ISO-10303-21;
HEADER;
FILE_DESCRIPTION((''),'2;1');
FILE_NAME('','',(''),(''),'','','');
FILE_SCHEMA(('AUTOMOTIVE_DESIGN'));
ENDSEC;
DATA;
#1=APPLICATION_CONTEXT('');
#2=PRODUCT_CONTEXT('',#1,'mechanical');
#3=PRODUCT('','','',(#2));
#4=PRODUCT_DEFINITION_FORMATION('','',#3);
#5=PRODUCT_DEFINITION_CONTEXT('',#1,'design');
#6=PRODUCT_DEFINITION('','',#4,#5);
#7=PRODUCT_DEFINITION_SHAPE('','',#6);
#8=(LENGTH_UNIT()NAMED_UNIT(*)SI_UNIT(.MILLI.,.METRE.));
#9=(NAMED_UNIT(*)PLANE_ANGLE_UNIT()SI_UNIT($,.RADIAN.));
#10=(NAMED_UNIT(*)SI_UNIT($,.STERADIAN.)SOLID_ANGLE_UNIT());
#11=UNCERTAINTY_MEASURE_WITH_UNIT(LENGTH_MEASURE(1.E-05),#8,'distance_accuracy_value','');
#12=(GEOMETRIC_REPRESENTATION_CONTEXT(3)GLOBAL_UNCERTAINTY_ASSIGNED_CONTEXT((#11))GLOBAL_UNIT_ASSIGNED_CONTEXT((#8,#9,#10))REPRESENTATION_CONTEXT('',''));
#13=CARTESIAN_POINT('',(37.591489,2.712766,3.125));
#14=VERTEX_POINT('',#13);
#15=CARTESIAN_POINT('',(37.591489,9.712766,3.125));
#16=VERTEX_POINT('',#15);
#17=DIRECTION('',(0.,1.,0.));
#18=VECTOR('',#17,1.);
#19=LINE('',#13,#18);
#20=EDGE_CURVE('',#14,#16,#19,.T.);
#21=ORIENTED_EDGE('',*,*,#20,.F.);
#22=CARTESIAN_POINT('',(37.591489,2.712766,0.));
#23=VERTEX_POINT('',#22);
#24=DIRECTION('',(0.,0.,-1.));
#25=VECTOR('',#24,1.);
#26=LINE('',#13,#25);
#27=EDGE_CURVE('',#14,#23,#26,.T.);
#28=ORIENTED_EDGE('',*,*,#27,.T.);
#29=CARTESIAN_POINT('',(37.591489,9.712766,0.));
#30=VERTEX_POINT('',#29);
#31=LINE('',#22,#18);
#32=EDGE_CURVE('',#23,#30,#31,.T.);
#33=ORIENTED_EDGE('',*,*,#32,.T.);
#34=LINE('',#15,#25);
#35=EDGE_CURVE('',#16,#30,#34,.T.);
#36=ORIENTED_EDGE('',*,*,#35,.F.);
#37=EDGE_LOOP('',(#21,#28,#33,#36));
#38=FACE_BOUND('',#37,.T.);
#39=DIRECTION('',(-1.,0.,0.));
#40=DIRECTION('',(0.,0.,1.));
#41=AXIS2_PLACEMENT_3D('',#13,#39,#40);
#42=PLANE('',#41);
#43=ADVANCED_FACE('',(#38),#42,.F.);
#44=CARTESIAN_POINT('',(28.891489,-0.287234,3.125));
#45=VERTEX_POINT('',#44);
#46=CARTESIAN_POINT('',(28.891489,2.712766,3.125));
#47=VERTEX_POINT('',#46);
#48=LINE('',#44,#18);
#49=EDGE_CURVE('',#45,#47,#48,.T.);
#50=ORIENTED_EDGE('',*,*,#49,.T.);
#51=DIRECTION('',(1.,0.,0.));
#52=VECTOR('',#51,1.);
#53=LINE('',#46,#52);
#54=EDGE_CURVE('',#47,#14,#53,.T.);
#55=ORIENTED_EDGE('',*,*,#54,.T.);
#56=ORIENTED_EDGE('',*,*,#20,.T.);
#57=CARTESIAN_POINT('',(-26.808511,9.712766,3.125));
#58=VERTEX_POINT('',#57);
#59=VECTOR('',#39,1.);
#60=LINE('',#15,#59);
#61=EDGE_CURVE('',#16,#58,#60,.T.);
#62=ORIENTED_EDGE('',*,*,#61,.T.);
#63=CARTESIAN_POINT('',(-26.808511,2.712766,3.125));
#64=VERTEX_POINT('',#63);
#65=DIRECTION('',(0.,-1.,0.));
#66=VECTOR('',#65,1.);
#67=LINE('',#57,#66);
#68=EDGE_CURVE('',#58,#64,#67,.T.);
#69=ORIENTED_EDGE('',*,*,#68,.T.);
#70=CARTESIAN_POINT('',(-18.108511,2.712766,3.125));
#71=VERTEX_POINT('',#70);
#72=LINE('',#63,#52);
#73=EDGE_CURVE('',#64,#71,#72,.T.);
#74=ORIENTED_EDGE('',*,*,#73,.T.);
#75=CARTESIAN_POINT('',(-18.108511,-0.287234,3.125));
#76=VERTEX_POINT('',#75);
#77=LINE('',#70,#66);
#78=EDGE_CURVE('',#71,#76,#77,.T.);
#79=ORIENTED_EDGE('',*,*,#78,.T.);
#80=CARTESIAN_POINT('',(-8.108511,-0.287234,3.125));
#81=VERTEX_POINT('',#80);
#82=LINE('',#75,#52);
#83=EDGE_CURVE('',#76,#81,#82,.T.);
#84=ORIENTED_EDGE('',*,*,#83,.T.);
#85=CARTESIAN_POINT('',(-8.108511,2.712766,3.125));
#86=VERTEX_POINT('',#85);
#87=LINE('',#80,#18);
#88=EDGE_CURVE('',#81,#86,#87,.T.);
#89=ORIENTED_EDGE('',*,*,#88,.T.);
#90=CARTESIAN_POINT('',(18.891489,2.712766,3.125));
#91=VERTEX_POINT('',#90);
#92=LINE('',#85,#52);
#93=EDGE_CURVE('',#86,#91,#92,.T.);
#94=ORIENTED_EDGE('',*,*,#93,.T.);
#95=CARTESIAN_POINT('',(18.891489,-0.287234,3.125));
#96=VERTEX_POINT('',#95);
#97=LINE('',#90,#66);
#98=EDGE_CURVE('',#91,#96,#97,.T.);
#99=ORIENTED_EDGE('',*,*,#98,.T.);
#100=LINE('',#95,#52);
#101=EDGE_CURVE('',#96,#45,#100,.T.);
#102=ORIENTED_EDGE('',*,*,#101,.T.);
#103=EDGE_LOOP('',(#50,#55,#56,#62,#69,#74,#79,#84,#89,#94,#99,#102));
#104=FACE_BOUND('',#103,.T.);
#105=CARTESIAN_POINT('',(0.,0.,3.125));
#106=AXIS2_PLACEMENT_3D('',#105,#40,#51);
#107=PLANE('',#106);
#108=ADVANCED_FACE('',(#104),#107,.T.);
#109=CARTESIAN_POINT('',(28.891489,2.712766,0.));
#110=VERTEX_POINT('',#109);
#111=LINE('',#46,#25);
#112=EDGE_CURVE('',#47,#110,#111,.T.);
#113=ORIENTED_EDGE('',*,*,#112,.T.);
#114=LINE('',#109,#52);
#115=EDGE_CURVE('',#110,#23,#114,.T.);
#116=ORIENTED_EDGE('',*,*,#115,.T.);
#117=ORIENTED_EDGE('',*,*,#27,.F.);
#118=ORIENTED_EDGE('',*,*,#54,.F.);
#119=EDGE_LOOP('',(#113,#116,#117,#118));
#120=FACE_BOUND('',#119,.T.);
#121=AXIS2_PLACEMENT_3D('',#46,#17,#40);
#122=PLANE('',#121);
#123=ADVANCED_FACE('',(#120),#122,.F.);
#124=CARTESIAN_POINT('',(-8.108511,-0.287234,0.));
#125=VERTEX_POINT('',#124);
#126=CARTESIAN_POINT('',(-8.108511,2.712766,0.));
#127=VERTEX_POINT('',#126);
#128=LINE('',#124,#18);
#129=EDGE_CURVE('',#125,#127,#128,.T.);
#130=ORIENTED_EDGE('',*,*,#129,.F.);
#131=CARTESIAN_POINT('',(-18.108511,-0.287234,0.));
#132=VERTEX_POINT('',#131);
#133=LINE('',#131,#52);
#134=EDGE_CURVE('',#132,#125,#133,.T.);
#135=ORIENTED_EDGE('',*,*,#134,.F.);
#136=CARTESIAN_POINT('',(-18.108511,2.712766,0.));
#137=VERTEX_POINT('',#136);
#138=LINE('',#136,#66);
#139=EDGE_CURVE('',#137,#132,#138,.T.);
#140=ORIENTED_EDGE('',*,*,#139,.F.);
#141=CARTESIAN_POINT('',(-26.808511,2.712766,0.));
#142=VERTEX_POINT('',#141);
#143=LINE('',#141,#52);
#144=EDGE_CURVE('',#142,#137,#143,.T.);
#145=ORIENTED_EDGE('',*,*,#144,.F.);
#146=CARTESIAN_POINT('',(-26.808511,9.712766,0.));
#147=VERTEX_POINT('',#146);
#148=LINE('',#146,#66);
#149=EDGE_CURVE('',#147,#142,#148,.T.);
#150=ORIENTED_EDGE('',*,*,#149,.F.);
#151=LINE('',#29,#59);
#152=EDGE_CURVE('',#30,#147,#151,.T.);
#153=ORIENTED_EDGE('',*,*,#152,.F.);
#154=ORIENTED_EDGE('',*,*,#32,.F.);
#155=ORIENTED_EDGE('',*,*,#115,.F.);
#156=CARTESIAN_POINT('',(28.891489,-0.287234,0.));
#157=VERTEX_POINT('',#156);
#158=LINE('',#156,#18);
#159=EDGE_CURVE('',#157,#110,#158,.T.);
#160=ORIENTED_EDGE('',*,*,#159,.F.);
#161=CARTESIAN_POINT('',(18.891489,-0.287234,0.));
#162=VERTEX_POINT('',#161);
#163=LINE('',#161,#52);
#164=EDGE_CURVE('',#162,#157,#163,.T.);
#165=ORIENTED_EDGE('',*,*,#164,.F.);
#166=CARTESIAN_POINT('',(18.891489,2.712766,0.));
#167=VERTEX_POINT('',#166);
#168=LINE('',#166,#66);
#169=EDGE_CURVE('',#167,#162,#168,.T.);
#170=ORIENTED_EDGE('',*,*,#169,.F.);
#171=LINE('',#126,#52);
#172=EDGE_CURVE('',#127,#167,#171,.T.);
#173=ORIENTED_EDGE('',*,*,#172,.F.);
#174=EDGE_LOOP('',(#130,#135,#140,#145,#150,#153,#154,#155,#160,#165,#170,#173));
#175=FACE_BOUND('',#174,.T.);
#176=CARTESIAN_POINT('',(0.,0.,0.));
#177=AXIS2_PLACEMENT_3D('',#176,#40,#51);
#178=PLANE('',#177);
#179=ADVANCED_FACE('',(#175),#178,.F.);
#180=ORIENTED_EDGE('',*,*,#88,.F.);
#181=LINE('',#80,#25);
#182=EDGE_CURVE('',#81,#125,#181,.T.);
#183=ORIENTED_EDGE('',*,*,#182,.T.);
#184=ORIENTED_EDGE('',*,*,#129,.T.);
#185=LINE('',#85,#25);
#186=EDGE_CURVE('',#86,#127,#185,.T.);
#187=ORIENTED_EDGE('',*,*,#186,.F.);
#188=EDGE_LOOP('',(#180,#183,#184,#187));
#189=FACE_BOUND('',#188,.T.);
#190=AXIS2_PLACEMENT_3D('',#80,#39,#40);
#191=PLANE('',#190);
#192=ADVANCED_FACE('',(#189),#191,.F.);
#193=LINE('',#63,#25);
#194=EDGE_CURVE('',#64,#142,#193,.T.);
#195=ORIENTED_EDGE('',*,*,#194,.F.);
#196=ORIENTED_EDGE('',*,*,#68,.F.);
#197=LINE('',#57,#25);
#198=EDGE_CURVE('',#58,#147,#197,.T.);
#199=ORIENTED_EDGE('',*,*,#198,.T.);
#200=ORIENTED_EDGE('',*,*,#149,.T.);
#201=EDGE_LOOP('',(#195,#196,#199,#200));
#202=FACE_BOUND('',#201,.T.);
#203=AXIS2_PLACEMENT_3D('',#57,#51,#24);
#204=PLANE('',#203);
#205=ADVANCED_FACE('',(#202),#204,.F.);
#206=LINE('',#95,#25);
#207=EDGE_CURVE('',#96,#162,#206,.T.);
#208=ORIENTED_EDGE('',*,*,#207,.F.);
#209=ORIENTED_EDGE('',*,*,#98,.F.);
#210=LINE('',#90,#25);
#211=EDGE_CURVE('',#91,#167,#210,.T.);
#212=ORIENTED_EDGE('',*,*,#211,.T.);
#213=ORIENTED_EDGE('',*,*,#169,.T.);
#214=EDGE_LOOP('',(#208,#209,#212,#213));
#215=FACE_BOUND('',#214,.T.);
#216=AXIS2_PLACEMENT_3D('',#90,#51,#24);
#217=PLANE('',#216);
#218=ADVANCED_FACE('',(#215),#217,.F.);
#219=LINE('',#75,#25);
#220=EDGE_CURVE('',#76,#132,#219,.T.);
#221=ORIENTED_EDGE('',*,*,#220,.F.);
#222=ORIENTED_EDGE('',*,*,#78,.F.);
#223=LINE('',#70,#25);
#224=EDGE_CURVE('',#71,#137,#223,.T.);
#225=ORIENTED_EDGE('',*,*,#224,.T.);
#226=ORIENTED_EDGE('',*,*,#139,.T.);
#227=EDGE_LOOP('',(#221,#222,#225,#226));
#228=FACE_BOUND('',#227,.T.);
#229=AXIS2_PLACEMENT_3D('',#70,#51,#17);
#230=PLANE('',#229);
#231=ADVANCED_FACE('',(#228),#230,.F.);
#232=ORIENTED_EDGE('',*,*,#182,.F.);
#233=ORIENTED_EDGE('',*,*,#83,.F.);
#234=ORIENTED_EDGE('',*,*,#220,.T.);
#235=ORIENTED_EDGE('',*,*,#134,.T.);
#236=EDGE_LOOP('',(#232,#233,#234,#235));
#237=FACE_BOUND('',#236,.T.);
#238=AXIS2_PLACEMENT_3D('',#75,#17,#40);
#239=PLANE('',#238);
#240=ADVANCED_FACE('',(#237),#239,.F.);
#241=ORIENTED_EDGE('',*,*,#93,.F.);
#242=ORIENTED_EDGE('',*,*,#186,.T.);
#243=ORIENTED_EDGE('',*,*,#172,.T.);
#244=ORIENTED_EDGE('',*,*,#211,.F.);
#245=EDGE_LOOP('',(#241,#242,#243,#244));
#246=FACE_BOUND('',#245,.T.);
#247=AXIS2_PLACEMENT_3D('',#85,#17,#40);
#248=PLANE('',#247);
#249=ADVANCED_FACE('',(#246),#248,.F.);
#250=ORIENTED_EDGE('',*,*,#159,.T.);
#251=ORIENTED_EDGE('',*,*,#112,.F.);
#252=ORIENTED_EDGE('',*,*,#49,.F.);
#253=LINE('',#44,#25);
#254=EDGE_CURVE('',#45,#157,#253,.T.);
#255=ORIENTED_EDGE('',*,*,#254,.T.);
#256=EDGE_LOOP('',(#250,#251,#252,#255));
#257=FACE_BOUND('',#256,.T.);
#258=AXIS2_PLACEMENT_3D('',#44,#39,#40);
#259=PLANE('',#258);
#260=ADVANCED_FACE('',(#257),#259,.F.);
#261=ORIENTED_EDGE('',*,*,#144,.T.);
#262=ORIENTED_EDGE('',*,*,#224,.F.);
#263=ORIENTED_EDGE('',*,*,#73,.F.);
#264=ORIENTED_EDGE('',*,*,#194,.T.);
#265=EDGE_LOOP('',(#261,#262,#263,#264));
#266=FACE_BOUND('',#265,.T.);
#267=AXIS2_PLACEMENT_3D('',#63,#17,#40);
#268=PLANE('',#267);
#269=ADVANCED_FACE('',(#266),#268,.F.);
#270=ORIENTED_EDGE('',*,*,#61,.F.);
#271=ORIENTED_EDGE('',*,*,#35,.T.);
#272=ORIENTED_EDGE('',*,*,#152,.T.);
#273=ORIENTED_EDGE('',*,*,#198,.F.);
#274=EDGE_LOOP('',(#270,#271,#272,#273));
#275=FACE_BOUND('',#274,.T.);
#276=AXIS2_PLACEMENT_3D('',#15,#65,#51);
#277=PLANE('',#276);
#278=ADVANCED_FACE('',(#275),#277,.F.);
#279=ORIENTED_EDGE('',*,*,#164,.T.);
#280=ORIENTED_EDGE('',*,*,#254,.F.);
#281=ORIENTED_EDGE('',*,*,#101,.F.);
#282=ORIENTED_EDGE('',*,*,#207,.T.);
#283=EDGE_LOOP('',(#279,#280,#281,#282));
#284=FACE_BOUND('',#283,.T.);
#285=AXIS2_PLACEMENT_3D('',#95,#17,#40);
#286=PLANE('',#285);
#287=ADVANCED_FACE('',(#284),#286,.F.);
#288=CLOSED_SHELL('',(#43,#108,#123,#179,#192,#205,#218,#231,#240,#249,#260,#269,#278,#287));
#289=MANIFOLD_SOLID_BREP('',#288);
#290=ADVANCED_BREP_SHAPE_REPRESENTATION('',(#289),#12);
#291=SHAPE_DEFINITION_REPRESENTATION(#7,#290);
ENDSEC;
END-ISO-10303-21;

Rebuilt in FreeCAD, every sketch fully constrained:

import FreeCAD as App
import Part
import Sketcher
from FreeCAD import Vector
Q = App.Units.Quantity


def add_polygon(sketch, points):
    """Adds a closed chain of lines whose ends are joined by coincident constraints."""
    first, n = sketch.GeometryCount, len(points)
    for a, b in zip(points, points[1:] + points[:1]):
        sketch.addGeometry(Part.LineSegment(App.Vector(*a, 0), App.Vector(*b, 0)), False)
    for i in range(n):
        sketch.addConstraint(Sketcher.Constraint("Coincident", first + i, 2, first + (i + 1) % n, 1))

doc = App.newDocument("Part")
body = doc.addObject("PartDesign::Body", "Body")

# Sketch on XY plane
sketch1 = body.newObject("Sketcher::SketchObject", "Sketch")
sketch1.AttachmentSupport = (doc.getObject("XY_Plane"), [""])
sketch1.MapMode = "FlatFace"
add_polygon(sketch1, [(-26.8, 9.7), (-26.8, 2.7), (-18.1, 2.7), (-18.1, -0.3), (-8.1, -0.3), (-8.1, 2.7), (18.9, 2.7), (18.9, -0.3), (28.9, -0.3), (28.9, 2.7), (37.6, 2.7), (37.6, 9.7)])  # lines 0-11
sketch1.addConstraint(Sketcher.Constraint("Vertical", 0))
sketch1.addConstraint(Sketcher.Constraint("Horizontal", 1))
sketch1.addConstraint(Sketcher.Constraint("Vertical", 2))
sketch1.addConstraint(Sketcher.Constraint("Horizontal", 3))
sketch1.addConstraint(Sketcher.Constraint("Vertical", 4))
sketch1.addConstraint(Sketcher.Constraint("Horizontal", 5))
sketch1.addConstraint(Sketcher.Constraint("Vertical", 6))
sketch1.addConstraint(Sketcher.Constraint("Horizontal", 7))
sketch1.addConstraint(Sketcher.Constraint("Vertical", 8))
sketch1.addConstraint(Sketcher.Constraint("Horizontal", 9))
sketch1.addConstraint(Sketcher.Constraint("Vertical", 10))
sketch1.addConstraint(Sketcher.Constraint("Horizontal", 11))
sketch1.addConstraint(Sketcher.Constraint("Horizontal", 1, 2, 4, 2))
sketch1.addConstraint(Sketcher.Constraint("Horizontal", 3, 2, 6, 2))
sketch1.addConstraint(Sketcher.Constraint("Horizontal", 5, 2, 8, 2))
sketch1.addConstraint(Sketcher.Constraint("Equal", 3, 7))
sketch1.addConstraint(Sketcher.Constraint("Equal", 1, 9))
sketch1.addConstraint(Sketcher.Constraint("DistanceX", 3, 1, 3, 2, Q("10 mm")))
sketch1.addConstraint(Sketcher.Constraint("DistanceX", 5, 1, 5, 2, Q("27 mm")))
sketch1.addConstraint(Sketcher.Constraint("DistanceY", 0, 2, 0, 1, Q("7 mm")))
sketch1.addConstraint(Sketcher.Constraint("DistanceY", 2, 2, 2, 1, Q("3 mm")))
sketch1.addConstraint(Sketcher.Constraint("DistanceX", 1, 1, 1, 2, Q("8.7 mm")))
sketch1.addConstraint(Sketcher.Constraint("DistanceX", 0, 2, -1, 1, Q("26.808511 mm")))
sketch1.addConstraint(Sketcher.Constraint("DistanceY", -1, 1, 0, 2, Q("2.712766 mm")))
pad1 = body.newObject("PartDesign::Pad", "Pad")
pad1.Profile = sketch1
pad1.Length = 3.125

doc.recompute()
